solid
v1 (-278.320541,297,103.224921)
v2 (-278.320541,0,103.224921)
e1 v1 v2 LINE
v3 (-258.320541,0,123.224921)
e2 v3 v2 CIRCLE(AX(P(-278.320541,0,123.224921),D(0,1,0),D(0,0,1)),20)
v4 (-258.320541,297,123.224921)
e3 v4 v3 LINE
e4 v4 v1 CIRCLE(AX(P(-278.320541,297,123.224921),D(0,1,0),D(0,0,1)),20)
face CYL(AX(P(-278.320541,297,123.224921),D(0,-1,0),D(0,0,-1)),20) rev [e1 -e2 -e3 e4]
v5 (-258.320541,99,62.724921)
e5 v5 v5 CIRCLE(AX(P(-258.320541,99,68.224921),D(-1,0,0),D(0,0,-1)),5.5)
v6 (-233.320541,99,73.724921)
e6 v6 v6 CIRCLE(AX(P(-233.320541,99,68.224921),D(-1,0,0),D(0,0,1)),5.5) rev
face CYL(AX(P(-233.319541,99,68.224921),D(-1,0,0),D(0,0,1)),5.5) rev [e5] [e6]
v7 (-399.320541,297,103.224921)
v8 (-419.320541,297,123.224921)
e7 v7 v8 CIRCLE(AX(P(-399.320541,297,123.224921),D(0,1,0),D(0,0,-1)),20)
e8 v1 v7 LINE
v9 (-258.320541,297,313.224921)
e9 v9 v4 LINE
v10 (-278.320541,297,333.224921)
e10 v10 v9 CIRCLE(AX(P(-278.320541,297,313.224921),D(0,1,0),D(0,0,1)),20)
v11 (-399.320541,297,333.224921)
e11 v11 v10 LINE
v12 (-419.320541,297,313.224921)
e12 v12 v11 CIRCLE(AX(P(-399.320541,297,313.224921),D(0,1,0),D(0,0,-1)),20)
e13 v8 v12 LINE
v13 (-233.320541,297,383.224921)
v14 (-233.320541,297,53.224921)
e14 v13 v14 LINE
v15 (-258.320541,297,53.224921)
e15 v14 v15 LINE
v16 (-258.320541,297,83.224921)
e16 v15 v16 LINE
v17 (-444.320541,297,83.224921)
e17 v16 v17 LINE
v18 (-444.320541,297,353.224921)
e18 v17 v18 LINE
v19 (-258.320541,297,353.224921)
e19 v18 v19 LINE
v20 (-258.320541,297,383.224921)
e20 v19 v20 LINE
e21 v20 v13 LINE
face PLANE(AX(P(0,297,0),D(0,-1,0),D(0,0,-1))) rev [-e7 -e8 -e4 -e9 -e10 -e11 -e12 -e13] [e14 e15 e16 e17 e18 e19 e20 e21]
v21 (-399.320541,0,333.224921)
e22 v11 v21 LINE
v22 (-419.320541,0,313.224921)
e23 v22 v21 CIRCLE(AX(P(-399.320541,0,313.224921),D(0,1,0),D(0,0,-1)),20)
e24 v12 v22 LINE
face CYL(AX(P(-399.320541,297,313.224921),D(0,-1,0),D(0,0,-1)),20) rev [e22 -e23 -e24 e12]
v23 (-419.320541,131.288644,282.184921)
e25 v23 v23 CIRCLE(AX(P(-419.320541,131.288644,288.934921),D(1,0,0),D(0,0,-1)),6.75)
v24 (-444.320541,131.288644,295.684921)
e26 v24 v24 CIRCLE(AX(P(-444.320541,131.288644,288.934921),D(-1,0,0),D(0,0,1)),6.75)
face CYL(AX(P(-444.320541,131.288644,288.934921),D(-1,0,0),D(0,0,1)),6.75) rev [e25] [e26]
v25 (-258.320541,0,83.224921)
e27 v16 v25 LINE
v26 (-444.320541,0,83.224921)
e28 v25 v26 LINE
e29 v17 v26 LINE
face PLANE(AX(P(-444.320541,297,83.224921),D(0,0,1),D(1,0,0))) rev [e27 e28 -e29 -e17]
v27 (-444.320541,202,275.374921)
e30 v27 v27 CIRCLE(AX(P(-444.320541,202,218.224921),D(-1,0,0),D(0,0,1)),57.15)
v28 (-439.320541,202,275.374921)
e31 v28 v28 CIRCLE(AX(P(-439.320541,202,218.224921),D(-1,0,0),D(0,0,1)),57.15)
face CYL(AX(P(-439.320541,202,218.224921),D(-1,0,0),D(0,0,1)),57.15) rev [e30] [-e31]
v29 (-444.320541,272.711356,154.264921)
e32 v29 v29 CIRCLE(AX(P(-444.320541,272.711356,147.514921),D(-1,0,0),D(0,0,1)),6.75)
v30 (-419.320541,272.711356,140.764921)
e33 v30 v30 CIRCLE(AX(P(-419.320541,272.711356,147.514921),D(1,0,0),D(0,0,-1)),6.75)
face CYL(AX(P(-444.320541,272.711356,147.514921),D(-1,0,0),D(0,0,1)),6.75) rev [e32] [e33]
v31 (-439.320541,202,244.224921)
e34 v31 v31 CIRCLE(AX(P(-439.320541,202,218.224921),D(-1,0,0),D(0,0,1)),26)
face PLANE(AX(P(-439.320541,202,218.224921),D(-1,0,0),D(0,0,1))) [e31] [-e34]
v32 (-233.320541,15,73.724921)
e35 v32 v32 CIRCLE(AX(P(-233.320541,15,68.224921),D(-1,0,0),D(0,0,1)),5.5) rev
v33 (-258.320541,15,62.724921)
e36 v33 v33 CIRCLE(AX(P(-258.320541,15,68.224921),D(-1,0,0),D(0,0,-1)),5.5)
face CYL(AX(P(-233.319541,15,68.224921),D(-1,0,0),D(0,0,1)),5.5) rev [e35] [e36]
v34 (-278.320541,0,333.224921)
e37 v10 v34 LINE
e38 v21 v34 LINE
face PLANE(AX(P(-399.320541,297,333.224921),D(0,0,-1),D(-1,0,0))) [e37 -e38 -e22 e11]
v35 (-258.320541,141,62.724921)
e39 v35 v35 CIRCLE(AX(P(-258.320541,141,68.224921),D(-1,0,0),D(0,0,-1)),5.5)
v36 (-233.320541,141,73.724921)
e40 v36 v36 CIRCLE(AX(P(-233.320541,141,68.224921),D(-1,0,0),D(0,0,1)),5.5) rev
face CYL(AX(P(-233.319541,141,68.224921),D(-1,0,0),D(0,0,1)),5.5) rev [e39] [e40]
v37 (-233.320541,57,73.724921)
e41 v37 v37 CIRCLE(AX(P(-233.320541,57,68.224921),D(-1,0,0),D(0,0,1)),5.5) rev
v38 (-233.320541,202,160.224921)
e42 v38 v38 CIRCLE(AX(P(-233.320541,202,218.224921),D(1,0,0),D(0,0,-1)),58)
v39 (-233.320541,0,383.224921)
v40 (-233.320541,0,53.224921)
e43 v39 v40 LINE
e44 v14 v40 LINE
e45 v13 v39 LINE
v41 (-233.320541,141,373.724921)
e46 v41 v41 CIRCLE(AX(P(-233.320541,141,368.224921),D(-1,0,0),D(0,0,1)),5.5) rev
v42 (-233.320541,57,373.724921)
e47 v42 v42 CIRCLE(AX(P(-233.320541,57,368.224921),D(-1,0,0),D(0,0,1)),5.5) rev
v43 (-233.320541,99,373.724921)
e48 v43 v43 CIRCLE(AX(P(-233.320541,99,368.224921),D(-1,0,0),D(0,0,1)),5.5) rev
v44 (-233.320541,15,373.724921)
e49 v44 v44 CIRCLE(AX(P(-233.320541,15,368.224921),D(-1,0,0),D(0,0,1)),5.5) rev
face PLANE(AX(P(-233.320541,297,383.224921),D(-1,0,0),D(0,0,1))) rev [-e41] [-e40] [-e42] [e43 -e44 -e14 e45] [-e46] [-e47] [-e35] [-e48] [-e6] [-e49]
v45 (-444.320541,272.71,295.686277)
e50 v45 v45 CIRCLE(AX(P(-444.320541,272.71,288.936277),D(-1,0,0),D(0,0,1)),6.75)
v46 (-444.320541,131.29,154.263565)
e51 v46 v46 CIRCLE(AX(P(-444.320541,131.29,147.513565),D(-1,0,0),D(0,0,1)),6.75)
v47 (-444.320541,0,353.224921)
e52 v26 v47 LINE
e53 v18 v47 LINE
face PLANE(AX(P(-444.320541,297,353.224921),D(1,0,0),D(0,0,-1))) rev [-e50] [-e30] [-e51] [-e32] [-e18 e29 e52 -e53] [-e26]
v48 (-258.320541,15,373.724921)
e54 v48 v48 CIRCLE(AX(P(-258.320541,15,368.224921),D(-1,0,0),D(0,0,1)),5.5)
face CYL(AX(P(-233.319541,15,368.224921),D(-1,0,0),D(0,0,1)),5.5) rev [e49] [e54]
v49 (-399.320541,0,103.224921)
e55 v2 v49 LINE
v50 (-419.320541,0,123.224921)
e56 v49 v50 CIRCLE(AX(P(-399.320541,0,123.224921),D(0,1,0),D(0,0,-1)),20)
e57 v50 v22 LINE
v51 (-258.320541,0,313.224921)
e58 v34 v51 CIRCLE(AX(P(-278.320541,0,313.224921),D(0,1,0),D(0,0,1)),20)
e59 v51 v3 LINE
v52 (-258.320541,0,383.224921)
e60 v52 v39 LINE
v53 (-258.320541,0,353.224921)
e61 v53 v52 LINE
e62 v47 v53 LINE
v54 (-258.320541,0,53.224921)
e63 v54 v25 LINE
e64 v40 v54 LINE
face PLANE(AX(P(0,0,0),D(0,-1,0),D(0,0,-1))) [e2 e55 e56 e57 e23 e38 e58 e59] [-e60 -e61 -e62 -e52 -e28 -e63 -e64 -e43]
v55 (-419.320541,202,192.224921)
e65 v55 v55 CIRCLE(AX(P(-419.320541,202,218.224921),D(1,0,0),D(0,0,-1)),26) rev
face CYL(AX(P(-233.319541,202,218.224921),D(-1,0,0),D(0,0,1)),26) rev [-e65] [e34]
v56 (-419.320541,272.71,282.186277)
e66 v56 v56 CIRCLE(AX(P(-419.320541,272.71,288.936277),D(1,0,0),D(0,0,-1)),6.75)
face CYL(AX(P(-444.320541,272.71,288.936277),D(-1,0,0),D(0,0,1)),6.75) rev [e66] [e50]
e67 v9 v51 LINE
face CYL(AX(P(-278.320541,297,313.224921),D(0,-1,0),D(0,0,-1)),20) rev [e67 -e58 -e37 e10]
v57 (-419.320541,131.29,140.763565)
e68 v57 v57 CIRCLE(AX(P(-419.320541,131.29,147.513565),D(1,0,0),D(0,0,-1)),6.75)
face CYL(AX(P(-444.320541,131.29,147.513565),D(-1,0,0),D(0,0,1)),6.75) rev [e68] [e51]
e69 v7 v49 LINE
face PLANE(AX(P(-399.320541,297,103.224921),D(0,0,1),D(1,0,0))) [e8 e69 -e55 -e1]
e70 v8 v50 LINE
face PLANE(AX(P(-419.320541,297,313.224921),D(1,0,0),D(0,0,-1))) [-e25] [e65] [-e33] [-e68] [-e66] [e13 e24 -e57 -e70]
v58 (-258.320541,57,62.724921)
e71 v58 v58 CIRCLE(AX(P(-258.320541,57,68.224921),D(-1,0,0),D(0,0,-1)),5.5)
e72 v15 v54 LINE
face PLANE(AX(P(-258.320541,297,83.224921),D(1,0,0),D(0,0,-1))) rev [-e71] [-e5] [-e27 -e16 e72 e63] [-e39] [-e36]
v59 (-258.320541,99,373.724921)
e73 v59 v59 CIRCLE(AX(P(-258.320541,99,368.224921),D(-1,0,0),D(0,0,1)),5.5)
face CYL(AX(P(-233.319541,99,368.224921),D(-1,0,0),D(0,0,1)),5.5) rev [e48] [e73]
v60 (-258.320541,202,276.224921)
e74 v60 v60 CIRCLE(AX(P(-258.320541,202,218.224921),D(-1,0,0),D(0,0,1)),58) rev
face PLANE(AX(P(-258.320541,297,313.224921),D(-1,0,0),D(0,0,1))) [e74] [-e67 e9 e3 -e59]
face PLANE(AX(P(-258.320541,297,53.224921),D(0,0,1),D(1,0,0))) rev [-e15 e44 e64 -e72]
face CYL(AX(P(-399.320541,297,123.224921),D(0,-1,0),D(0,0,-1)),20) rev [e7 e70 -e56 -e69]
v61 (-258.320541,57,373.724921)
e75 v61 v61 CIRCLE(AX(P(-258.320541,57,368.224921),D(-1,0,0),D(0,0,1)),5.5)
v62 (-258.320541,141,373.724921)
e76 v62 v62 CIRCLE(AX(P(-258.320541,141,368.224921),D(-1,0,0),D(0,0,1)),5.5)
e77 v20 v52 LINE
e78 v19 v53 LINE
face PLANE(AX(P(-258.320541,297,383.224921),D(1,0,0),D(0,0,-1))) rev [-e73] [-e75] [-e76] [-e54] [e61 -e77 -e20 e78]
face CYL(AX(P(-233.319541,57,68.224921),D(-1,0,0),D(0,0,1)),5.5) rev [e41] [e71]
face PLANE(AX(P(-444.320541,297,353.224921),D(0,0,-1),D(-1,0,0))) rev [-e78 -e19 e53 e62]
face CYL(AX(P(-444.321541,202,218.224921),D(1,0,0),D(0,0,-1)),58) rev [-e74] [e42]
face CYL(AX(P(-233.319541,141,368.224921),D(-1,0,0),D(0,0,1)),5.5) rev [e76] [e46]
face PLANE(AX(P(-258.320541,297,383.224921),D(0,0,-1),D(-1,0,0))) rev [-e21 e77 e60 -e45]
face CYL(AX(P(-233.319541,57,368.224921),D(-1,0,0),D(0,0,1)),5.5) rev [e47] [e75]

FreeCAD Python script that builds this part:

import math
import FreeCAD as App
import Part
import Sketcher

V = App.Vector
Q = App.Units.Quantity

doc = App.newDocument("Part")
body = doc.addObject("PartDesign::Body", "Body")

# Sketch on XZ plane
sketch1 = body.newObject("Sketcher::SketchObject", "Sketch")
sketch1.AttachmentSupport = (doc.getObject("XZ_Plane"), [""])
sketch1.MapMode = "FlatFace"
sketch1.addGeometry([
    Part.LineSegment(V(-258, 53, 0), V(-258, 83, 0)),  # 0
    Part.LineSegment(V(-258, 83, 0), V(-444, 83, 0)),  # 1
    Part.LineSegment(V(-444, 83, 0), V(-444, 353, 0)),  # 2
    Part.LineSegment(V(-444, 353, 0), V(-258, 353, 0)),  # 3
    Part.LineSegment(V(-258, 353, 0), V(-258, 383, 0)),  # 4
    Part.LineSegment(V(-258, 383, 0), V(-233, 383, 0)),  # 5
    Part.LineSegment(V(-233, 383, 0), V(-233, 53, 0)),  # 6
    Part.LineSegment(V(-233, 53, 0), V(-258, 53, 0)),  # 7
    Part.ArcOfCircle(Part.Circle(V(-278, 313, 0), V(0, 0, 1), 20), math.radians(0), math.radians(90)),  # 8
    Part.LineSegment(V(-278, 333, 0), V(-399, 333, 0)),  # 9
    Part.ArcOfCircle(Part.Circle(V(-399, 313, 0), V(0, 0, 1), 20), math.radians(90), math.radians(180)),  # 10
    Part.LineSegment(V(-419, 313, 0), V(-419, 123, 0)),  # 11
    Part.ArcOfCircle(Part.Circle(V(-399, 123, 0), V(0, 0, 1), 20), math.radians(180), math.radians(270)),  # 12
    Part.LineSegment(V(-399, 103, 0), V(-278, 103, 0)),  # 13
    Part.ArcOfCircle(Part.Circle(V(-278, 123, 0), V(0, 0, 1), 20), math.radians(-90), math.radians(0)),  # 14
    Part.LineSegment(V(-258, 123, 0), V(-258, 313, 0)),  # 15
], False)
sketch1.addConstraint([
    Sketcher.Constraint("Coincident", 0, 2, 1, 1),
    Sketcher.Constraint("Coincident", 1, 2, 2, 1),
    Sketcher.Constraint("Coincident", 2, 2, 3, 1),
    Sketcher.Constraint("Coincident", 3, 2, 4, 1),
    Sketcher.Constraint("Coincident", 4, 2, 5, 1),
    Sketcher.Constraint("Coincident", 5, 2, 6, 1),
    Sketcher.Constraint("Coincident", 6, 2, 7, 1),
    Sketcher.Constraint("Coincident", 7, 2, 0, 1),
    Sketcher.Constraint("Tangent", 8, 2, 9, 1),
    Sketcher.Constraint("Tangent", 9, 2, 10, 1),
    Sketcher.Constraint("Tangent", 10, 2, 11, 1),
    Sketcher.Constraint("Tangent", 11, 2, 12, 1),
    Sketcher.Constraint("Tangent", 12, 2, 13, 1),
    Sketcher.Constraint("Tangent", 13, 2, 14, 1),
    Sketcher.Constraint("Tangent", 14, 2, 15, 1),
    Sketcher.Constraint("Tangent", 15, 2, 8, 1),
    Sketcher.Constraint("Vertical", 0),
    Sketcher.Constraint("Horizontal", 1),
    Sketcher.Constraint("Vertical", 2),
    Sketcher.Constraint("Horizontal", 3),
    Sketcher.Constraint("Vertical", 4),
    Sketcher.Constraint("Horizontal", 5),
    Sketcher.Constraint("Vertical", 6),
    Sketcher.Constraint("Horizontal", 7),
    Sketcher.Constraint("Horizontal", 9),
    Sketcher.Constraint("Vertical", 11),
    Sketcher.Constraint("Horizontal", 13),
    Sketcher.Constraint("Vertical", 15),
    Sketcher.Constraint("Equal", 8, 10),
    Sketcher.Constraint("Equal", 10, 12),
    Sketcher.Constraint("Equal", 12, 14),
    Sketcher.Constraint("Vertical", 0, 2, 3, 2),
    Sketcher.Constraint("Vertical", 7, 2, 14, 2),
    Sketcher.Constraint("Equal", 0, 4),
    Sketcher.Constraint("Radius", 8, Q("20 mm")),
    Sketcher.Constraint("DistanceX", 1, 2, 1, 1, Q("186 mm")),
    Sketcher.Constraint("DistanceX", 5, 1, 5, 2, Q("25 mm")),
    Sketcher.Constraint("DistanceX", 9, 2, 9, 1, Q("121 mm")),
    Sketcher.Constraint("DistanceY", 0, 1, 0, 2, Q("30 mm")),
    Sketcher.Constraint("DistanceY", 2, 1, 2, 2, Q("270 mm")),
    Sketcher.Constraint("DistanceY", 11, 2, 11, 1, Q("190 mm")),
    Sketcher.Constraint("DistanceY", 0, 2, 14, 3, Q("40 mm")),
    Sketcher.Constraint("DistanceX", 8, 3, -1, 1, Q("278.320541 mm")),
    Sketcher.Constraint("DistanceY", -1, 1, 8, 3, Q("313.224921 mm")),
])
pad1 = body.newObject("PartDesign::Pad", "Pad")
pad1.Profile = sketch1
pad1.Length = 297
pad1.Reversed = True

# Sketch on YZ plane
sketch2 = body.newObject("Sketcher::SketchObject", "Sketch001")
sketch2.AttachmentSupport = (doc.getObject("YZ_Plane"), [""])
sketch2.MapMode = "FlatFace"
sketch2.AttachmentOffset = App.Placement(V(0, 0, -444.320541), App.Rotation())
sketch2.addGeometry(Part.Circle(V(202, 218, 0), V(0, 0, 1), 57), False)
sketch2.addConstraint([
    Sketcher.Constraint("Diameter", 0, Q("114.3 mm")),
    Sketcher.Constraint("DistanceX", -1, 1, 0, 3, Q("202 mm")),
    Sketcher.Constraint("DistanceY", -1, 1, 0, 3, Q("218.224921 mm")),
])
pocket1 = body.newObject("PartDesign::Pocket", "Pocket")
pocket1.Profile = sketch2
pocket1.Length = 5
pocket1.Reversed = True

# Sketch on YZ plane
sketch3 = body.newObject("Sketcher::SketchObject", "Sketch002")
sketch3.AttachmentSupport = (doc.getObject("YZ_Plane"), [""])
sketch3.MapMode = "FlatFace"
sketch3.AttachmentOffset = App.Placement(V(0, 0, -439.320541), App.Rotation())
sketch3.addGeometry(Part.Circle(V(202, 218, 0), V(0, 0, 1), 26), False)
sketch3.addConstraint([
    Sketcher.Constraint("Diameter", 0, Q("52 mm")),
    Sketcher.Constraint("DistanceX", -1, 1, 0, 3, Q("202 mm")),
    Sketcher.Constraint("DistanceY", -1, 1, 0, 3, Q("218.224921 mm")),
])
pocket2 = body.newObject("PartDesign::Pocket", "Pocket001")
pocket2.Profile = sketch3
pocket2.Type = "UpToFirst"
pocket2.Reversed = True

# Sketch on YZ plane
sketch4 = body.newObject("Sketcher::SketchObject", "Sketch003")
sketch4.AttachmentSupport = (doc.getObject("YZ_Plane"), [""])
sketch4.MapMode = "FlatFace"
sketch4.AttachmentOffset = App.Placement(V(0, 0, -233.320541), App.Rotation())
sketch4.addGeometry(Part.Circle(V(202, 218, 0), V(0, 0, 1), 58), False)
sketch4.addConstraint([
    Sketcher.Constraint("Diameter", 0, Q("116 mm")),
    Sketcher.Constraint("DistanceX", -1, 1, 0, 3, Q("202 mm")),
    Sketcher.Constraint("DistanceY", -1, 1, 0, 3, Q("218.224921 mm")),
])
pocket3 = body.newObject("PartDesign::Pocket", "Pocket002")
pocket3.Profile = sketch4
pocket3.Type = "UpToFirst"

# Sketch on YZ plane
sketch5 = body.newObject("Sketcher::SketchObject", "Sketch004")
sketch5.AttachmentSupport = (doc.getObject("YZ_Plane"), [""])
sketch5.MapMode = "FlatFace"
sketch5.AttachmentOffset = App.Placement(V(0, 0, -258.320541), App.Rotation())
sketch5.addGeometry(Part.Circle(V(15, 368, 0), V(0, 0, 1), 6), False)
sketch5.addConstraint([
    Sketcher.Constraint("Diameter", 0, Q("11 mm")),
    Sketcher.Constraint("DistanceX", -1, 1, 0, 3, Q("15 mm")),
    Sketcher.Constraint("DistanceY", -1, 1, 0, 3, Q("368.224921 mm")),
])
pocket4 = body.newObject("PartDesign::Pocket", "Pocket003")
pocket4.Profile = sketch5
pocket4.Type = "UpToFirst"
pocket4.Reversed = True

# Sketch on YZ plane
sketch6 = body.newObject("Sketcher::SketchObject", "Sketch005")
sketch6.AttachmentSupport = (doc.getObject("YZ_Plane"), [""])
sketch6.MapMode = "FlatFace"
sketch6.AttachmentOffset = App.Placement(V(0, 0, -258.320541), App.Rotation())
sketch6.addGeometry(Part.Circle(V(57, 368, 0), V(0, 0, 1), 6), False)
sketch6.addConstraint([
    Sketcher.Constraint("Diameter", 0, Q("11 mm")),
    Sketcher.Constraint("DistanceX", -1, 1, 0, 3, Q("57 mm")),
    Sketcher.Constraint("DistanceY", -1, 1, 0, 3, Q("368.224921 mm")),
])
pocket5 = body.newObject("PartDesign::Pocket", "Pocket004")
pocket5.Profile = sketch6
pocket5.Type = "UpToFirst"
pocket5.Reversed = True

# Sketch on YZ plane
sketch7 = body.newObject("Sketcher::SketchObject", "Sketch006")
sketch7.AttachmentSupport = (doc.getObject("YZ_Plane"), [""])
sketch7.MapMode = "FlatFace"
sketch7.AttachmentOffset = App.Placement(V(0, 0, -258.320541), App.Rotation())
sketch7.addGeometry(Part.Circle(V(99, 368, 0), V(0, 0, 1), 6), False)
sketch7.addConstraint([
    Sketcher.Constraint("Diameter", 0, Q("11 mm")),
    Sketcher.Constraint("DistanceX", -1, 1, 0, 3, Q("99 mm")),
    Sketcher.Constraint("DistanceY", -1, 1, 0, 3, Q("368.224921 mm")),
])
pocket6 = body.newObject("PartDesign::Pocket", "Pocket005")
pocket6.Profile = sketch7
pocket6.Type = "UpToFirst"
pocket6.Reversed = True

# Sketch on YZ plane
sketch8 = body.newObject("Sketcher::SketchObject", "Sketch007")
sketch8.AttachmentSupport = (doc.getObject("YZ_Plane"), [""])
sketch8.MapMode = "FlatFace"
sketch8.AttachmentOffset = App.Placement(V(0, 0, -258.320541), App.Rotation())
sketch8.addGeometry(Part.Circle(V(141, 368, 0), V(0, 0, 1), 6), False)
sketch8.addConstraint([
    Sketcher.Constraint("Diameter", 0, Q("11 mm")),
    Sketcher.Constraint("DistanceX", -1, 1, 0, 3, Q("141 mm")),
    Sketcher.Constraint("DistanceY", -1, 1, 0, 3, Q("368.224921 mm")),
])
pocket7 = body.newObject("PartDesign::Pocket", "Pocket006")
pocket7.Profile = sketch8
pocket7.Type = "UpToFirst"
pocket7.Reversed = True

# Sketch on YZ plane
sketch9 = body.newObject("Sketcher::SketchObject", "Sketch008")
sketch9.AttachmentSupport = (doc.getObject("YZ_Plane"), [""])
sketch9.MapMode = "FlatFace"
sketch9.AttachmentOffset = App.Placement(V(0, 0, -258.320541), App.Rotation())
sketch9.addGeometry(Part.Circle(V(141, 68, 0), V(0, 0, 1), 6), False)
sketch9.addConstraint([
    Sketcher.Constraint("Diameter", 0, Q("11 mm")),
    Sketcher.Constraint("DistanceX", -1, 1, 0, 3, Q("141 mm")),
    Sketcher.Constraint("DistanceY", -1, 1, 0, 3, Q("68.224921 mm")),
])
pocket8 = body.newObject("PartDesign::Pocket", "Pocket007")
pocket8.Profile = sketch9
pocket8.Type = "UpToFirst"
pocket8.Reversed = True

# Sketch on YZ plane
sketch10 = body.newObject("Sketcher::SketchObject", "Sketch009")
sketch10.AttachmentSupport = (doc.getObject("YZ_Plane"), [""])
sketch10.MapMode = "FlatFace"
sketch10.AttachmentOffset = App.Placement(V(0, 0, -258.320541), App.Rotation())
sketch10.addGeometry(Part.Circle(V(15, 68, 0), V(0, 0, 1), 6), False)
sketch10.addConstraint([
    Sketcher.Constraint("Diameter", 0, Q("11 mm")),
    Sketcher.Constraint("DistanceX", -1, 1, 0, 3, Q("15 mm")),
    Sketcher.Constraint("DistanceY", -1, 1, 0, 3, Q("68.224921 mm")),
])
pocket9 = body.newObject("PartDesign::Pocket", "Pocket008")
pocket9.Profile = sketch10
pocket9.Type = "UpToFirst"
pocket9.Reversed = True

# Sketch on YZ plane
sketch11 = body.newObject("Sketcher::SketchObject", "Sketch010")
sketch11.AttachmentSupport = (doc.getObject("YZ_Plane"), [""])
sketch11.MapMode = "FlatFace"
sketch11.AttachmentOffset = App.Placement(V(0, 0, -258.320541), App.Rotation())
sketch11.addGeometry(Part.Circle(V(57, 68, 0), V(0, 0, 1), 6), False)
sketch11.addConstraint([
    Sketcher.Constraint("Diameter", 0, Q("11 mm")),
    Sketcher.Constraint("DistanceX", -1, 1, 0, 3, Q("57 mm")),
    Sketcher.Constraint("DistanceY", -1, 1, 0, 3, Q("68.224921 mm")),
])
pocket10 = body.newObject("PartDesign::Pocket", "Pocket009")
pocket10.Profile = sketch11
pocket10.Type = "UpToFirst"
pocket10.Reversed = True

# Sketch on YZ plane
sketch12 = body.newObject("Sketcher::SketchObject", "Sketch011")
sketch12.AttachmentSupport = (doc.getObject("YZ_Plane"), [""])
sketch12.MapMode = "FlatFace"
sketch12.AttachmentOffset = App.Placement(V(0, 0, -258.320541), App.Rotation())
sketch12.addGeometry(Part.Circle(V(99, 68, 0), V(0, 0, 1), 6), False)
sketch12.addConstraint([
    Sketcher.Constraint("Diameter", 0, Q("11 mm")),
    Sketcher.Constraint("DistanceX", -1, 1, 0, 3, Q("99 mm")),
    Sketcher.Constraint("DistanceY", -1, 1, 0, 3, Q("68.224921 mm")),
])
pocket11 = body.newObject("PartDesign::Pocket", "Pocket010")
pocket11.Profile = sketch12
pocket11.Type = "UpToFirst"
pocket11.Reversed = True

# Sketch on YZ plane
sketch13 = body.newObject("Sketcher::SketchObject", "Sketch012")
sketch13.AttachmentSupport = (doc.getObject("YZ_Plane"), [""])
sketch13.MapMode = "FlatFace"
sketch13.AttachmentOffset = App.Placement(V(0, 0, -444.320541), App.Rotation())
sketch13.addGeometry(Part.Circle(V(273, 148, 0), V(0, 0, 1), 7), False)
sketch13.addConstraint([
    Sketcher.Constraint("Diameter", 0, Q("13.5 mm")),
    Sketcher.Constraint("DistanceY", -1, 1, 0, 3, Q("147.514921 mm")),
    Sketcher.Constraint("DistanceX", -1, 1, 0, 3, Q("272.711356 mm")),
])
doc.recompute()
hole = body.newObject("PartDesign::Hole", "Hole")
hole.Profile = sketch13
hole.ThreadType = "None"
hole.Diameter = 13.5
hole.DepthType = "Dimension"
hole.Depth = 25
hole.DrillPoint = "Flat"
hole.Reversed = True
doc.recompute()

datumline = body.newObject("PartDesign::Line", "DatumLine")
datumline.Placement = App.Placement(V(0, 202, 218.224921), App.Rotation(V(0, 0, 1), V(1, 0, 0)))
polarpattern = body.newObject("PartDesign::PolarPattern", "PolarPattern")
polarpattern.Originals = [hole]
polarpattern.Axis = (datumline, [""])
polarpattern.Angle = 360
polarpattern.Occurrences = 4
body.Tip = polarpattern

doc.recompute()
